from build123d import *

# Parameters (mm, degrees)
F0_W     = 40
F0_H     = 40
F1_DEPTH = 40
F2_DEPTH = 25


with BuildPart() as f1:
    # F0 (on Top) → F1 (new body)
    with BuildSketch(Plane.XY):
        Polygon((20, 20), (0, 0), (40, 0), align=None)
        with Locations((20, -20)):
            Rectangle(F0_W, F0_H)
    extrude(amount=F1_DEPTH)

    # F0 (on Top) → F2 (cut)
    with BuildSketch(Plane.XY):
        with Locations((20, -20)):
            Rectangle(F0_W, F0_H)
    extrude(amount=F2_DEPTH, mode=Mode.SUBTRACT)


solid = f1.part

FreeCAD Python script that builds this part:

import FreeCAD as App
import Part
import Sketcher

V = App.Vector
Q = App.Units.Quantity

doc = App.newDocument("Part")
params = doc.addObject("Spreadsheet::Sheet", "Params")
for row, (alias, value) in enumerate([
    ("sketch1_width", "40 mm"),
    ("pad1_length", "40 mm"),
    ("sketch2_width", "40 mm"),
    ("pocket1_length", "25 mm"),
], start=1):
    params.set(f"A{row}", alias)
    params.set(f"B{row}", "=" + value)
    params.setAlias(f"B{row}", alias)

body = doc.addObject("PartDesign::Body", "Body")

# Sketch on XY plane
sketch1 = doc.addObject("Sketcher::SketchObject", "Sketch")
body.addObject(sketch1)
sketch1.AttachmentSupport = (doc.XY_Plane, [""])
sketch1.MapMode = "FlatFace"
sketch1.addGeometry(Part.LineSegment(V(20, 20, 0), V(0, 0, 0)), False)
sketch1.addGeometry(Part.LineSegment(V(0, 0, 0), V(0, -40, 0)), False)
sketch1.addGeometry(Part.LineSegment(V(0, -40, 0), V(40, -40, 0)), False)
sketch1.addGeometry(Part.LineSegment(V(40, -40, 0), V(40, 0, 0)), False)
sketch1.addGeometry(Part.LineSegment(V(40, 0, 0), V(20, 20, 0)), False)
sketch1.addConstraint(Sketcher.Constraint("Coincident", 0, 2, 1, 1))
sketch1.addConstraint(Sketcher.Constraint("Coincident", 1, 2, 2, 1))
sketch1.addConstraint(Sketcher.Constraint("Coincident", 2, 2, 3, 1))
sketch1.addConstraint(Sketcher.Constraint("Coincident", 3, 2, 4, 1))
sketch1.addConstraint(Sketcher.Constraint("Coincident", 4, 2, 0, 1))
sketch1.addConstraint(Sketcher.Constraint("Vertical", 1))
sketch1.addConstraint(Sketcher.Constraint("Horizontal", 2))
sketch1.addConstraint(Sketcher.Constraint("Vertical", 3))
sketch1.addConstraint(Sketcher.Constraint("Coincident", 0, 2, -1, 1))
sketch1.addConstraint(Sketcher.Constraint("PointOnObject", 3, 2, -1))
sketch1.addConstraint(Sketcher.Constraint("Perpendicular", 0, 4))
sketch1.addConstraint(Sketcher.Constraint("Equal", 2, 1))
sketch1.addConstraint(Sketcher.Constraint("Equal", 0, 4))
sketch1.addConstraint(Sketcher.Constraint("DistanceX", 2, 1, 2, 2, Q("40 mm")))
sketch1.setExpression("Constraints[13]", "Params.sketch1_width")
pad1 = doc.addObject("PartDesign::Pad", "Pad")
body.addObject(pad1)
pad1.Profile = sketch1
pad1.setExpression("Length", "Params.pad1_length")

# Sketch on XY plane
sketch2 = doc.addObject("Sketcher::SketchObject", "Sketch001")
body.addObject(sketch2)
sketch2.AttachmentSupport = (doc.XY_Plane, [""])
sketch2.MapMode = "FlatFace"
sketch2.addGeometry(Part.LineSegment(V(0, 0, 0), V(0, -40, 0)), False)
sketch2.addGeometry(Part.LineSegment(V(0, -40, 0), V(40, -40, 0)), False)
sketch2.addGeometry(Part.LineSegment(V(40, -40, 0), V(40, 0, 0)), False)
sketch2.addGeometry(Part.LineSegment(V(40, 0, 0), V(0, 0, 0)), False)
sketch2.addConstraint(Sketcher.Constraint("Coincident", 0, 2, 1, 1))
sketch2.addConstraint(Sketcher.Constraint("Coincident", 1, 2, 2, 1))
sketch2.addConstraint(Sketcher.Constraint("Coincident", 2, 2, 3, 1))
sketch2.addConstraint(Sketcher.Constraint("Coincident", 3, 2, 0, 1))
sketch2.addConstraint(Sketcher.Constraint("Vertical", 0))
sketch2.addConstraint(Sketcher.Constraint("Horizontal", 1))
sketch2.addConstraint(Sketcher.Constraint("Vertical", 2))
sketch2.addConstraint(Sketcher.Constraint("Horizontal", 3))
sketch2.addConstraint(Sketcher.Constraint("Coincident", 3, 2, -1, 1))
sketch2.addConstraint(Sketcher.Constraint("Equal", 3, 0))
sketch2.addConstraint(Sketcher.Constraint("DistanceX", 1, 1, 1, 2, Q("40 mm")))
sketch2.setExpression("Constraints[10]", "Params.sketch2_width")
pocket1 = doc.addObject("PartDesign::Pocket", "Pocket")
body.addObject(pocket1)
pocket1.Profile = sketch2
pocket1.setExpression("Length", "Params.pocket1_length")
pocket1.Reversed = True

doc.recompute()
